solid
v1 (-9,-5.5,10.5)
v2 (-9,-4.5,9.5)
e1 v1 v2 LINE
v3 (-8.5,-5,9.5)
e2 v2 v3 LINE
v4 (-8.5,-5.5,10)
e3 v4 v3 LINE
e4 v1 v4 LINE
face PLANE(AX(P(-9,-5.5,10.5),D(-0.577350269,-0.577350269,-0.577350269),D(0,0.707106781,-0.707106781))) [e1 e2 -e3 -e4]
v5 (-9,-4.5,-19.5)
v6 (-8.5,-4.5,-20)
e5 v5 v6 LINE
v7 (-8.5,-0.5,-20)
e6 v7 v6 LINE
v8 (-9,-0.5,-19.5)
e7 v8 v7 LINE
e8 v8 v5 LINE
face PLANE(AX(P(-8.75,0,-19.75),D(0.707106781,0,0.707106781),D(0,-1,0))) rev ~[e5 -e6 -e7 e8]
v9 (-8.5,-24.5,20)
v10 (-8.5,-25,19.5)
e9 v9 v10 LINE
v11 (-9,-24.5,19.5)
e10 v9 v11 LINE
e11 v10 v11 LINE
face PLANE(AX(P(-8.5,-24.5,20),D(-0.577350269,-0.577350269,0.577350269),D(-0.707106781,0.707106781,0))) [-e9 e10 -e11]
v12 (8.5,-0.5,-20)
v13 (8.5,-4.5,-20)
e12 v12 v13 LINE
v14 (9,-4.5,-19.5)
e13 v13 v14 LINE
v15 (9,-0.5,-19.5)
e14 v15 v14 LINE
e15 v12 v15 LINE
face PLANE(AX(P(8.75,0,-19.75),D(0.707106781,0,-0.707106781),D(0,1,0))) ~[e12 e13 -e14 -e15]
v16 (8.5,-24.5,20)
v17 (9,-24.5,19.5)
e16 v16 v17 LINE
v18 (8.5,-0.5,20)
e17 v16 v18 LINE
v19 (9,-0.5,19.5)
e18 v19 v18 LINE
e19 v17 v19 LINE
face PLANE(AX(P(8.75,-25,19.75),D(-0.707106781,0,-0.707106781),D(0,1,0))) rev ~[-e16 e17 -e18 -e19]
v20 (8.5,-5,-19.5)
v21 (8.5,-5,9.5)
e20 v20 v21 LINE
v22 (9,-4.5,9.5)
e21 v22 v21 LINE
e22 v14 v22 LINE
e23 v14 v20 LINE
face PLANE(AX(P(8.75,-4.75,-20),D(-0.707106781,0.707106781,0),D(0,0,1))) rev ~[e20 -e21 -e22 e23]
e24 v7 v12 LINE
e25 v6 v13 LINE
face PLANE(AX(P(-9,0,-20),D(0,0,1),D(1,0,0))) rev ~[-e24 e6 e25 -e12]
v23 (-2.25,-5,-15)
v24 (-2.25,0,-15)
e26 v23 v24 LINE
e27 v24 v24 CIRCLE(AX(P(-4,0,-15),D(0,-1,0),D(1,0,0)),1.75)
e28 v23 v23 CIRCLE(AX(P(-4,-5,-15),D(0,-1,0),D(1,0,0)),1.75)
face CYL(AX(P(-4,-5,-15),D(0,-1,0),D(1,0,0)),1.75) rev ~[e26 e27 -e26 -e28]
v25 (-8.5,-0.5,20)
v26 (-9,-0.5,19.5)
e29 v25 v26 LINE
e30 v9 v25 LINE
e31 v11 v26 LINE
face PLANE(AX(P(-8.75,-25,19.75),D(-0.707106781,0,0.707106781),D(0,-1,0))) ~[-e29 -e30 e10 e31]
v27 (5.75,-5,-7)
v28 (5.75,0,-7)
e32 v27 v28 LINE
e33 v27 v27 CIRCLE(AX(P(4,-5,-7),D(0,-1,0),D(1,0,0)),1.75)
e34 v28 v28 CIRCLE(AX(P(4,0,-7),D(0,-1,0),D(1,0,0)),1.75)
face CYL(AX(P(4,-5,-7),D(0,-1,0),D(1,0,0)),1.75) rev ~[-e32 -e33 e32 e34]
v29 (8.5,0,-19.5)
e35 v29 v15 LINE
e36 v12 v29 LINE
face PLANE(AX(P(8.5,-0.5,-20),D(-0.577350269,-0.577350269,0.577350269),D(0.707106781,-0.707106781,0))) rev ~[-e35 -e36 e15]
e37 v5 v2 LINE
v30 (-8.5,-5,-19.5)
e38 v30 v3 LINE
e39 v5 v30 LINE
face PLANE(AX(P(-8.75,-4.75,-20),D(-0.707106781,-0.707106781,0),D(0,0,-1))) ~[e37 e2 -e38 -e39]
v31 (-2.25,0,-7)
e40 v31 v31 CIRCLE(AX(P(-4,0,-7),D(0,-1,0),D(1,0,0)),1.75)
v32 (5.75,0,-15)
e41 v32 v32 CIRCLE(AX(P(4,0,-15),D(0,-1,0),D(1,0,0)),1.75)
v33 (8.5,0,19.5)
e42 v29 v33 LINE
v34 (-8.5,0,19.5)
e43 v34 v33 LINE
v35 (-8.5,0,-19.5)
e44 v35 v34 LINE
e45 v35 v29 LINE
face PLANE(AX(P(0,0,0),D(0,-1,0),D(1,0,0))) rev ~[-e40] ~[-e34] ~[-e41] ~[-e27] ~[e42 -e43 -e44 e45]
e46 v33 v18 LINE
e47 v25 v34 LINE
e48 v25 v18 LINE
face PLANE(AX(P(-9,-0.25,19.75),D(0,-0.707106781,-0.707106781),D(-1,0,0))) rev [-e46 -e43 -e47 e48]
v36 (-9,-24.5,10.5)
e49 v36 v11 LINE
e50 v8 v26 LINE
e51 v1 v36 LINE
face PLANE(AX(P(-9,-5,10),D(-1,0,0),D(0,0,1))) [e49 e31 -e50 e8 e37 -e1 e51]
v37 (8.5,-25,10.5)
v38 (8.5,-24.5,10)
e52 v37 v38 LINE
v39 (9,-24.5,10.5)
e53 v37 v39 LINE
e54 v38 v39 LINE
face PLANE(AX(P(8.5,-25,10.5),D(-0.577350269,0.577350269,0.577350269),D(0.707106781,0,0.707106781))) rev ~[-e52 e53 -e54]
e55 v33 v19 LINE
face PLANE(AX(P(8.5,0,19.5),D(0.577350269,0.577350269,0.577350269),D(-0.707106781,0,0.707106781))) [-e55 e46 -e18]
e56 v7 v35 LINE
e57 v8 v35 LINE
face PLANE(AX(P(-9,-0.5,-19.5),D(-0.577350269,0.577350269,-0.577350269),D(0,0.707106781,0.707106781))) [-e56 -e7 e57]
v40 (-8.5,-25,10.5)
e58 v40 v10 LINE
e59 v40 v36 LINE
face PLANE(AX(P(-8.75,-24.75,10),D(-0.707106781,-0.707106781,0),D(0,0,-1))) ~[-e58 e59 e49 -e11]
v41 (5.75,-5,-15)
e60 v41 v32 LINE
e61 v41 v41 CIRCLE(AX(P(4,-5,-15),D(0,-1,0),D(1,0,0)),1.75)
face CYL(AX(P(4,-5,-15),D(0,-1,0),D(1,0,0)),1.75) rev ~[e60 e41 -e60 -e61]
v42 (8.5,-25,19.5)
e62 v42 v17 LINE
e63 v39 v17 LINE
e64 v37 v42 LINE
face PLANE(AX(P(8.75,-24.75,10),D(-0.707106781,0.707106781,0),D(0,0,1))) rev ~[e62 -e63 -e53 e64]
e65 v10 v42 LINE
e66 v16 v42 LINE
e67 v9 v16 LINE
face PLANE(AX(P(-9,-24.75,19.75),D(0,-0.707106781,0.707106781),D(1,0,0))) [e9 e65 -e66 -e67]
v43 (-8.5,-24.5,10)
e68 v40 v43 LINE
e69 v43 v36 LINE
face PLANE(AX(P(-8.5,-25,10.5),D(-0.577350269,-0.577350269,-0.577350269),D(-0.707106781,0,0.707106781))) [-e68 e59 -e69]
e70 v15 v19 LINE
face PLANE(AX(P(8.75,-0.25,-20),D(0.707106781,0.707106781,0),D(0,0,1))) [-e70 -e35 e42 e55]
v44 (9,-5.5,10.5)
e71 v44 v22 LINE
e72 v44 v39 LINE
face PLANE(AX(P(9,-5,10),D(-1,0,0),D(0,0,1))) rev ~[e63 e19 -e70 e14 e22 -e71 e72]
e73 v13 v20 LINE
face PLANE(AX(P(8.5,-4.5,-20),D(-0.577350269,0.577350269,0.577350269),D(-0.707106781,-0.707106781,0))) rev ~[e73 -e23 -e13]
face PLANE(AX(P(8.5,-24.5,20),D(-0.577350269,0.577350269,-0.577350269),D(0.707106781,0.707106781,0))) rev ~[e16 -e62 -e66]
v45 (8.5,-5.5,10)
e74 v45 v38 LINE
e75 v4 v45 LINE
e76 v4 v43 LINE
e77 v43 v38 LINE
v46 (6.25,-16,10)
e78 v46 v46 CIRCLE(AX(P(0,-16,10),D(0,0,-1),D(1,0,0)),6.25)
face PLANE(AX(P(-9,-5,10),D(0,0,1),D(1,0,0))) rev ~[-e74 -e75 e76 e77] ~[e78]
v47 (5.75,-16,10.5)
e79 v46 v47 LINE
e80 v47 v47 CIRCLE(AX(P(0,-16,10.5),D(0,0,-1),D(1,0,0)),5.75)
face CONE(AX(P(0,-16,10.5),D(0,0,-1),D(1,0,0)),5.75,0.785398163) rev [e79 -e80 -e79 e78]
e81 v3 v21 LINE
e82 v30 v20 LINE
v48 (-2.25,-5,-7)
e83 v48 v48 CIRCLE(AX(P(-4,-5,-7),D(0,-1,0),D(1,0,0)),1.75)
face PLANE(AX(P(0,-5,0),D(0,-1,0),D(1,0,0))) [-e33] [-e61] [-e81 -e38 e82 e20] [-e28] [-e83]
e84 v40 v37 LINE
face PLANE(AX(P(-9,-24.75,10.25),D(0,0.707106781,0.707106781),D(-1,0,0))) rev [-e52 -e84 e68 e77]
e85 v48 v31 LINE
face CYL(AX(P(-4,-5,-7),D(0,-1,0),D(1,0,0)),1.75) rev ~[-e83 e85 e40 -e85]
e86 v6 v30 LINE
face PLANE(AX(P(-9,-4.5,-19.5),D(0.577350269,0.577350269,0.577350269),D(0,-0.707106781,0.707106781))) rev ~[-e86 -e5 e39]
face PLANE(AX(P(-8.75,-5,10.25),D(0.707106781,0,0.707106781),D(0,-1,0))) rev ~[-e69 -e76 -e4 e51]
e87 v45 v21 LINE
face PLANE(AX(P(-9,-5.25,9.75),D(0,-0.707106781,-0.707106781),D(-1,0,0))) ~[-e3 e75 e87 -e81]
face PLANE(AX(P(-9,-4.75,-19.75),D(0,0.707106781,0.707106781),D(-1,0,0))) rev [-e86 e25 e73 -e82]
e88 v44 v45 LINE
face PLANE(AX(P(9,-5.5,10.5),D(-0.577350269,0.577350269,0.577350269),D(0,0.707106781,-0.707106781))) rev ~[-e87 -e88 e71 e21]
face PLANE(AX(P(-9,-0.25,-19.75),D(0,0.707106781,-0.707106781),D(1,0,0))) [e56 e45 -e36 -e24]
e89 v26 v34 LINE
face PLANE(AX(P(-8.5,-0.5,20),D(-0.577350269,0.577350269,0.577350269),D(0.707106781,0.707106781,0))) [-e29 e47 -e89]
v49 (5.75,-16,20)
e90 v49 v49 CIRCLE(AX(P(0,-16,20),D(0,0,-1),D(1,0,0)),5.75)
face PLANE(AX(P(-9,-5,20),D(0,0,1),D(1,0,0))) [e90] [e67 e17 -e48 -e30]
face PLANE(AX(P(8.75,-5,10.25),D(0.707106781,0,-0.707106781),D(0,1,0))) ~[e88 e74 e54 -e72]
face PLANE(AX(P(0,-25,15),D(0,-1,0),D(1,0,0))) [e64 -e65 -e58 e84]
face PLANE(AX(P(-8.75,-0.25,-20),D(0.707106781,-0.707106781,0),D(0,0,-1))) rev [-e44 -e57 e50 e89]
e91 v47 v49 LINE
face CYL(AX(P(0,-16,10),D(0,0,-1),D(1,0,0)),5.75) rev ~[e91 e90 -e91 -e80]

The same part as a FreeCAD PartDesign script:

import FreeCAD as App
import Part
import Sketcher
Q = App.Units.Quantity


def edges_at(feature, points):
    """Names of the edges that pass closest to the given points."""
    edges = feature.Shape.Edges
    near = lambda p: min(range(len(edges)), key=lambda i: edges[i].distToShape(Part.Vertex(*p))[0])
    return sorted({f"Edge{near(p) + 1}" for p in points})


def add_polygon(sketch, points):
    """Adds a closed chain of lines whose ends are joined by coincident constraints."""
    first, n = sketch.GeometryCount, len(points)
    for a, b in zip(points, points[1:] + points[:1]):
        sketch.addGeometry(Part.LineSegment(App.Vector(*a, 0), App.Vector(*b, 0)), False)
    for i in range(n):
        sketch.addConstraint(Sketcher.Constraint("Coincident", first + i, 2, first + (i + 1) % n, 1))

doc = App.newDocument("Part")
params = doc.addObject("Spreadsheet::Sheet", "Params")
for row, (alias, value) in enumerate([
    ("sketch1_width", "18 mm"),
    ("sketch1_height", "40 mm"),
    ("pad1_length", "5 mm"),
    ("sketch2_diameter", "3.5 mm"),
    ("sketch3_width", "18 mm"),
    ("sketch3_height", "10 mm"),
    ("pad2_length", "20 mm"),
    ("sketch4_diameter", "11.5 mm"),
    ("chamfer_size", "0.5 mm"),
], start=1):
    params.set(f"A{row}", alias)
    params.set(f"B{row}", "=" + value)
    params.setAlias(f"B{row}", alias)

body = doc.addObject("PartDesign::Body", "Body")

sketch1 = body.newObject("Sketcher::SketchObject", "Sketch")
sketch1.AttachmentSupport = (doc.getObject("XZ_Plane"), [""])
sketch1.MapMode = "FlatFace"
add_polygon(sketch1, [(-9, 20), (-9, -20), (9, -20), (9, 20)])
sketch1.addConstraint(Sketcher.Constraint("Vertical", 0))
sketch1.addConstraint(Sketcher.Constraint("Horizontal", 1))
sketch1.addConstraint(Sketcher.Constraint("Vertical", 2))
sketch1.addConstraint(Sketcher.Constraint("Horizontal", 3))
sketch1.addConstraint(Sketcher.Constraint("Symmetric", 0, 2, 2, 2, -1, 1))
sketch1.addConstraint(Sketcher.Constraint("DistanceX", 1, 1, 1, 2, Q("18 mm")))
sketch1.addConstraint(Sketcher.Constraint("DistanceY", 0, 2, 0, 1, Q("40 mm")))
sketch1.setExpression("Constraints[9]", "Params.sketch1_width")
sketch1.setExpression("Constraints[10]", "Params.sketch1_height")
pad1 = body.newObject("PartDesign::Pad", "Pad")
pad1.Profile = sketch1
pad1.setExpression("Length", "Params.pad1_length")

sketch2 = body.newObject("Sketcher::SketchObject", "Sketch001")
sketch2.AttachmentSupport = (doc.getObject("XZ_Plane"), [""])
sketch2.MapMode = "FlatFace"
sketch2.AttachmentOffset = App.Placement(App.Vector(0, 0, 5), App.Rotation())
sketch2.addGeometry(Part.Circle(App.Vector(-4, -15, 0), App.Vector(0, 0, 1), 1.75), False)
sketch2.addGeometry(Part.Circle(App.Vector(4, -15, 0), App.Vector(0, 0, 1), 1.75), False)
sketch2.addGeometry(Part.Circle(App.Vector(4, -7, 0), App.Vector(0, 0, 1), 1.75), False)
sketch2.addGeometry(Part.Circle(App.Vector(-4, -7, 0), App.Vector(0, 0, 1), 1.75), False)
sketch2.addConstraint(Sketcher.Constraint("Equal", 0, 1))
sketch2.addConstraint(Sketcher.Constraint("Equal", 1, 2))
sketch2.addConstraint(Sketcher.Constraint("Equal", 2, 3))
sketch2.addConstraint(Sketcher.Constraint("Symmetric", 0, 3, 1, 3, -2))
sketch2.addConstraint(Sketcher.Constraint("Symmetric", 2, 3, 3, 3, -2))
sketch2.addConstraint(Sketcher.Constraint("Vertical", 1, 3, 2, 3))
sketch2.addConstraint(Sketcher.Constraint("Diameter", 0, Q("3.5 mm")))
sketch2.addConstraint(Sketcher.Constraint("DistanceX", 0, 3, -1, 1, Q("4 mm")))
sketch2.addConstraint(Sketcher.Constraint("DistanceY", 0, 3, -1, 1, Q("15 mm")))
sketch2.addConstraint(Sketcher.Constraint("DistanceY", 2, 3, -1, 1, Q("7 mm")))
sketch2.setExpression("Constraints[6]", "Params.sketch2_diameter")
pocket1 = body.newObject("PartDesign::Pocket", "Pocket")
pocket1.Profile = sketch2
pocket1.Type = "ThroughAll"

sketch3 = body.newObject("Sketcher::SketchObject", "Sketch002")
sketch3.AttachmentSupport = (doc.getObject("XZ_Plane"), [""])
sketch3.MapMode = "FlatFace"
sketch3.AttachmentOffset = App.Placement(App.Vector(0, 0, 5), App.Rotation())
add_polygon(sketch3, [(-9, 20), (-9, 10), (9, 10), (9, 20)])
sketch3.addConstraint(Sketcher.Constraint("Vertical", 0))
sketch3.addConstraint(Sketcher.Constraint("Horizontal", 1))
sketch3.addConstraint(Sketcher.Constraint("Vertical", 2))
sketch3.addConstraint(Sketcher.Constraint("Horizontal", 3))
sketch3.addConstraint(Sketcher.Constraint("DistanceX", 1, 1, 1, 2, Q("18 mm")))
sketch3.addConstraint(Sketcher.Constraint("DistanceY", 0, 2, 0, 1, Q("10 mm")))
sketch3.addConstraint(Sketcher.Constraint("DistanceX", 0, 2, -1, 1, Q("9 mm")))
sketch3.addConstraint(Sketcher.Constraint("DistanceY", -1, 1, 0, 2, Q("10 mm")))
sketch3.setExpression("Constraints[8]", "Params.sketch3_width")
sketch3.setExpression("Constraints[9]", "Params.sketch3_height")
pad2 = body.newObject("PartDesign::Pad", "Pad001")
pad2.Profile = sketch3
pad2.setExpression("Length", "Params.pad2_length")

sketch4 = body.newObject("Sketcher::SketchObject", "Sketch003")
sketch4.AttachmentSupport = (doc.getObject("XY_Plane"), [""])
sketch4.MapMode = "FlatFace"
sketch4.AttachmentOffset = App.Placement(App.Vector(0, 0, 10), App.Rotation())
sketch4.addGeometry(Part.Circle(App.Vector(0, -16, 0), App.Vector(0, 0, 1), 5.75), False)
sketch4.addConstraint(Sketcher.Constraint("PointOnObject", 0, 3, -2))
sketch4.addConstraint(Sketcher.Constraint("Diameter", 0, Q("11.5 mm")))
sketch4.addConstraint(Sketcher.Constraint("DistanceY", 0, 3, -1, 1, Q("16 mm")))
sketch4.setExpression("Constraints[1]", "Params.sketch4_diameter")
pocket2 = body.newObject("PartDesign::Pocket", "Pocket001")
pocket2.Profile = sketch4
pocket2.Type = "ThroughAll"
pocket2.Reversed = True
doc.recompute()

chamfer = body.newObject("PartDesign::Chamfer", "Chamfer")
chamfer.Base = (pocket2, edges_at(pocket2, [
    (9, -15, 10),
    (-9, -15, 10),
    (0, -25, 10),
    (9, -25, 15),
    (-9, -25, 15),
    (0, -25, 20),
    (9, -12.5, 20),
    (9, -5, -5),
    (9, 0, 0),
    (0, 0, -20),
    (9, -2.5, -20),
    (0, -5, -20),
    (-9, -2.5, -20),
    (-9, -5, -5),
    (-9, 0, 0),
    (-9, -12.5, 20),
    (0, 0, 20),
    (0, -5, 10),
    (-5.75, -16, 10),
]))
chamfer.setExpression("Size", "Params.chamfer_size")

doc.recompute()
